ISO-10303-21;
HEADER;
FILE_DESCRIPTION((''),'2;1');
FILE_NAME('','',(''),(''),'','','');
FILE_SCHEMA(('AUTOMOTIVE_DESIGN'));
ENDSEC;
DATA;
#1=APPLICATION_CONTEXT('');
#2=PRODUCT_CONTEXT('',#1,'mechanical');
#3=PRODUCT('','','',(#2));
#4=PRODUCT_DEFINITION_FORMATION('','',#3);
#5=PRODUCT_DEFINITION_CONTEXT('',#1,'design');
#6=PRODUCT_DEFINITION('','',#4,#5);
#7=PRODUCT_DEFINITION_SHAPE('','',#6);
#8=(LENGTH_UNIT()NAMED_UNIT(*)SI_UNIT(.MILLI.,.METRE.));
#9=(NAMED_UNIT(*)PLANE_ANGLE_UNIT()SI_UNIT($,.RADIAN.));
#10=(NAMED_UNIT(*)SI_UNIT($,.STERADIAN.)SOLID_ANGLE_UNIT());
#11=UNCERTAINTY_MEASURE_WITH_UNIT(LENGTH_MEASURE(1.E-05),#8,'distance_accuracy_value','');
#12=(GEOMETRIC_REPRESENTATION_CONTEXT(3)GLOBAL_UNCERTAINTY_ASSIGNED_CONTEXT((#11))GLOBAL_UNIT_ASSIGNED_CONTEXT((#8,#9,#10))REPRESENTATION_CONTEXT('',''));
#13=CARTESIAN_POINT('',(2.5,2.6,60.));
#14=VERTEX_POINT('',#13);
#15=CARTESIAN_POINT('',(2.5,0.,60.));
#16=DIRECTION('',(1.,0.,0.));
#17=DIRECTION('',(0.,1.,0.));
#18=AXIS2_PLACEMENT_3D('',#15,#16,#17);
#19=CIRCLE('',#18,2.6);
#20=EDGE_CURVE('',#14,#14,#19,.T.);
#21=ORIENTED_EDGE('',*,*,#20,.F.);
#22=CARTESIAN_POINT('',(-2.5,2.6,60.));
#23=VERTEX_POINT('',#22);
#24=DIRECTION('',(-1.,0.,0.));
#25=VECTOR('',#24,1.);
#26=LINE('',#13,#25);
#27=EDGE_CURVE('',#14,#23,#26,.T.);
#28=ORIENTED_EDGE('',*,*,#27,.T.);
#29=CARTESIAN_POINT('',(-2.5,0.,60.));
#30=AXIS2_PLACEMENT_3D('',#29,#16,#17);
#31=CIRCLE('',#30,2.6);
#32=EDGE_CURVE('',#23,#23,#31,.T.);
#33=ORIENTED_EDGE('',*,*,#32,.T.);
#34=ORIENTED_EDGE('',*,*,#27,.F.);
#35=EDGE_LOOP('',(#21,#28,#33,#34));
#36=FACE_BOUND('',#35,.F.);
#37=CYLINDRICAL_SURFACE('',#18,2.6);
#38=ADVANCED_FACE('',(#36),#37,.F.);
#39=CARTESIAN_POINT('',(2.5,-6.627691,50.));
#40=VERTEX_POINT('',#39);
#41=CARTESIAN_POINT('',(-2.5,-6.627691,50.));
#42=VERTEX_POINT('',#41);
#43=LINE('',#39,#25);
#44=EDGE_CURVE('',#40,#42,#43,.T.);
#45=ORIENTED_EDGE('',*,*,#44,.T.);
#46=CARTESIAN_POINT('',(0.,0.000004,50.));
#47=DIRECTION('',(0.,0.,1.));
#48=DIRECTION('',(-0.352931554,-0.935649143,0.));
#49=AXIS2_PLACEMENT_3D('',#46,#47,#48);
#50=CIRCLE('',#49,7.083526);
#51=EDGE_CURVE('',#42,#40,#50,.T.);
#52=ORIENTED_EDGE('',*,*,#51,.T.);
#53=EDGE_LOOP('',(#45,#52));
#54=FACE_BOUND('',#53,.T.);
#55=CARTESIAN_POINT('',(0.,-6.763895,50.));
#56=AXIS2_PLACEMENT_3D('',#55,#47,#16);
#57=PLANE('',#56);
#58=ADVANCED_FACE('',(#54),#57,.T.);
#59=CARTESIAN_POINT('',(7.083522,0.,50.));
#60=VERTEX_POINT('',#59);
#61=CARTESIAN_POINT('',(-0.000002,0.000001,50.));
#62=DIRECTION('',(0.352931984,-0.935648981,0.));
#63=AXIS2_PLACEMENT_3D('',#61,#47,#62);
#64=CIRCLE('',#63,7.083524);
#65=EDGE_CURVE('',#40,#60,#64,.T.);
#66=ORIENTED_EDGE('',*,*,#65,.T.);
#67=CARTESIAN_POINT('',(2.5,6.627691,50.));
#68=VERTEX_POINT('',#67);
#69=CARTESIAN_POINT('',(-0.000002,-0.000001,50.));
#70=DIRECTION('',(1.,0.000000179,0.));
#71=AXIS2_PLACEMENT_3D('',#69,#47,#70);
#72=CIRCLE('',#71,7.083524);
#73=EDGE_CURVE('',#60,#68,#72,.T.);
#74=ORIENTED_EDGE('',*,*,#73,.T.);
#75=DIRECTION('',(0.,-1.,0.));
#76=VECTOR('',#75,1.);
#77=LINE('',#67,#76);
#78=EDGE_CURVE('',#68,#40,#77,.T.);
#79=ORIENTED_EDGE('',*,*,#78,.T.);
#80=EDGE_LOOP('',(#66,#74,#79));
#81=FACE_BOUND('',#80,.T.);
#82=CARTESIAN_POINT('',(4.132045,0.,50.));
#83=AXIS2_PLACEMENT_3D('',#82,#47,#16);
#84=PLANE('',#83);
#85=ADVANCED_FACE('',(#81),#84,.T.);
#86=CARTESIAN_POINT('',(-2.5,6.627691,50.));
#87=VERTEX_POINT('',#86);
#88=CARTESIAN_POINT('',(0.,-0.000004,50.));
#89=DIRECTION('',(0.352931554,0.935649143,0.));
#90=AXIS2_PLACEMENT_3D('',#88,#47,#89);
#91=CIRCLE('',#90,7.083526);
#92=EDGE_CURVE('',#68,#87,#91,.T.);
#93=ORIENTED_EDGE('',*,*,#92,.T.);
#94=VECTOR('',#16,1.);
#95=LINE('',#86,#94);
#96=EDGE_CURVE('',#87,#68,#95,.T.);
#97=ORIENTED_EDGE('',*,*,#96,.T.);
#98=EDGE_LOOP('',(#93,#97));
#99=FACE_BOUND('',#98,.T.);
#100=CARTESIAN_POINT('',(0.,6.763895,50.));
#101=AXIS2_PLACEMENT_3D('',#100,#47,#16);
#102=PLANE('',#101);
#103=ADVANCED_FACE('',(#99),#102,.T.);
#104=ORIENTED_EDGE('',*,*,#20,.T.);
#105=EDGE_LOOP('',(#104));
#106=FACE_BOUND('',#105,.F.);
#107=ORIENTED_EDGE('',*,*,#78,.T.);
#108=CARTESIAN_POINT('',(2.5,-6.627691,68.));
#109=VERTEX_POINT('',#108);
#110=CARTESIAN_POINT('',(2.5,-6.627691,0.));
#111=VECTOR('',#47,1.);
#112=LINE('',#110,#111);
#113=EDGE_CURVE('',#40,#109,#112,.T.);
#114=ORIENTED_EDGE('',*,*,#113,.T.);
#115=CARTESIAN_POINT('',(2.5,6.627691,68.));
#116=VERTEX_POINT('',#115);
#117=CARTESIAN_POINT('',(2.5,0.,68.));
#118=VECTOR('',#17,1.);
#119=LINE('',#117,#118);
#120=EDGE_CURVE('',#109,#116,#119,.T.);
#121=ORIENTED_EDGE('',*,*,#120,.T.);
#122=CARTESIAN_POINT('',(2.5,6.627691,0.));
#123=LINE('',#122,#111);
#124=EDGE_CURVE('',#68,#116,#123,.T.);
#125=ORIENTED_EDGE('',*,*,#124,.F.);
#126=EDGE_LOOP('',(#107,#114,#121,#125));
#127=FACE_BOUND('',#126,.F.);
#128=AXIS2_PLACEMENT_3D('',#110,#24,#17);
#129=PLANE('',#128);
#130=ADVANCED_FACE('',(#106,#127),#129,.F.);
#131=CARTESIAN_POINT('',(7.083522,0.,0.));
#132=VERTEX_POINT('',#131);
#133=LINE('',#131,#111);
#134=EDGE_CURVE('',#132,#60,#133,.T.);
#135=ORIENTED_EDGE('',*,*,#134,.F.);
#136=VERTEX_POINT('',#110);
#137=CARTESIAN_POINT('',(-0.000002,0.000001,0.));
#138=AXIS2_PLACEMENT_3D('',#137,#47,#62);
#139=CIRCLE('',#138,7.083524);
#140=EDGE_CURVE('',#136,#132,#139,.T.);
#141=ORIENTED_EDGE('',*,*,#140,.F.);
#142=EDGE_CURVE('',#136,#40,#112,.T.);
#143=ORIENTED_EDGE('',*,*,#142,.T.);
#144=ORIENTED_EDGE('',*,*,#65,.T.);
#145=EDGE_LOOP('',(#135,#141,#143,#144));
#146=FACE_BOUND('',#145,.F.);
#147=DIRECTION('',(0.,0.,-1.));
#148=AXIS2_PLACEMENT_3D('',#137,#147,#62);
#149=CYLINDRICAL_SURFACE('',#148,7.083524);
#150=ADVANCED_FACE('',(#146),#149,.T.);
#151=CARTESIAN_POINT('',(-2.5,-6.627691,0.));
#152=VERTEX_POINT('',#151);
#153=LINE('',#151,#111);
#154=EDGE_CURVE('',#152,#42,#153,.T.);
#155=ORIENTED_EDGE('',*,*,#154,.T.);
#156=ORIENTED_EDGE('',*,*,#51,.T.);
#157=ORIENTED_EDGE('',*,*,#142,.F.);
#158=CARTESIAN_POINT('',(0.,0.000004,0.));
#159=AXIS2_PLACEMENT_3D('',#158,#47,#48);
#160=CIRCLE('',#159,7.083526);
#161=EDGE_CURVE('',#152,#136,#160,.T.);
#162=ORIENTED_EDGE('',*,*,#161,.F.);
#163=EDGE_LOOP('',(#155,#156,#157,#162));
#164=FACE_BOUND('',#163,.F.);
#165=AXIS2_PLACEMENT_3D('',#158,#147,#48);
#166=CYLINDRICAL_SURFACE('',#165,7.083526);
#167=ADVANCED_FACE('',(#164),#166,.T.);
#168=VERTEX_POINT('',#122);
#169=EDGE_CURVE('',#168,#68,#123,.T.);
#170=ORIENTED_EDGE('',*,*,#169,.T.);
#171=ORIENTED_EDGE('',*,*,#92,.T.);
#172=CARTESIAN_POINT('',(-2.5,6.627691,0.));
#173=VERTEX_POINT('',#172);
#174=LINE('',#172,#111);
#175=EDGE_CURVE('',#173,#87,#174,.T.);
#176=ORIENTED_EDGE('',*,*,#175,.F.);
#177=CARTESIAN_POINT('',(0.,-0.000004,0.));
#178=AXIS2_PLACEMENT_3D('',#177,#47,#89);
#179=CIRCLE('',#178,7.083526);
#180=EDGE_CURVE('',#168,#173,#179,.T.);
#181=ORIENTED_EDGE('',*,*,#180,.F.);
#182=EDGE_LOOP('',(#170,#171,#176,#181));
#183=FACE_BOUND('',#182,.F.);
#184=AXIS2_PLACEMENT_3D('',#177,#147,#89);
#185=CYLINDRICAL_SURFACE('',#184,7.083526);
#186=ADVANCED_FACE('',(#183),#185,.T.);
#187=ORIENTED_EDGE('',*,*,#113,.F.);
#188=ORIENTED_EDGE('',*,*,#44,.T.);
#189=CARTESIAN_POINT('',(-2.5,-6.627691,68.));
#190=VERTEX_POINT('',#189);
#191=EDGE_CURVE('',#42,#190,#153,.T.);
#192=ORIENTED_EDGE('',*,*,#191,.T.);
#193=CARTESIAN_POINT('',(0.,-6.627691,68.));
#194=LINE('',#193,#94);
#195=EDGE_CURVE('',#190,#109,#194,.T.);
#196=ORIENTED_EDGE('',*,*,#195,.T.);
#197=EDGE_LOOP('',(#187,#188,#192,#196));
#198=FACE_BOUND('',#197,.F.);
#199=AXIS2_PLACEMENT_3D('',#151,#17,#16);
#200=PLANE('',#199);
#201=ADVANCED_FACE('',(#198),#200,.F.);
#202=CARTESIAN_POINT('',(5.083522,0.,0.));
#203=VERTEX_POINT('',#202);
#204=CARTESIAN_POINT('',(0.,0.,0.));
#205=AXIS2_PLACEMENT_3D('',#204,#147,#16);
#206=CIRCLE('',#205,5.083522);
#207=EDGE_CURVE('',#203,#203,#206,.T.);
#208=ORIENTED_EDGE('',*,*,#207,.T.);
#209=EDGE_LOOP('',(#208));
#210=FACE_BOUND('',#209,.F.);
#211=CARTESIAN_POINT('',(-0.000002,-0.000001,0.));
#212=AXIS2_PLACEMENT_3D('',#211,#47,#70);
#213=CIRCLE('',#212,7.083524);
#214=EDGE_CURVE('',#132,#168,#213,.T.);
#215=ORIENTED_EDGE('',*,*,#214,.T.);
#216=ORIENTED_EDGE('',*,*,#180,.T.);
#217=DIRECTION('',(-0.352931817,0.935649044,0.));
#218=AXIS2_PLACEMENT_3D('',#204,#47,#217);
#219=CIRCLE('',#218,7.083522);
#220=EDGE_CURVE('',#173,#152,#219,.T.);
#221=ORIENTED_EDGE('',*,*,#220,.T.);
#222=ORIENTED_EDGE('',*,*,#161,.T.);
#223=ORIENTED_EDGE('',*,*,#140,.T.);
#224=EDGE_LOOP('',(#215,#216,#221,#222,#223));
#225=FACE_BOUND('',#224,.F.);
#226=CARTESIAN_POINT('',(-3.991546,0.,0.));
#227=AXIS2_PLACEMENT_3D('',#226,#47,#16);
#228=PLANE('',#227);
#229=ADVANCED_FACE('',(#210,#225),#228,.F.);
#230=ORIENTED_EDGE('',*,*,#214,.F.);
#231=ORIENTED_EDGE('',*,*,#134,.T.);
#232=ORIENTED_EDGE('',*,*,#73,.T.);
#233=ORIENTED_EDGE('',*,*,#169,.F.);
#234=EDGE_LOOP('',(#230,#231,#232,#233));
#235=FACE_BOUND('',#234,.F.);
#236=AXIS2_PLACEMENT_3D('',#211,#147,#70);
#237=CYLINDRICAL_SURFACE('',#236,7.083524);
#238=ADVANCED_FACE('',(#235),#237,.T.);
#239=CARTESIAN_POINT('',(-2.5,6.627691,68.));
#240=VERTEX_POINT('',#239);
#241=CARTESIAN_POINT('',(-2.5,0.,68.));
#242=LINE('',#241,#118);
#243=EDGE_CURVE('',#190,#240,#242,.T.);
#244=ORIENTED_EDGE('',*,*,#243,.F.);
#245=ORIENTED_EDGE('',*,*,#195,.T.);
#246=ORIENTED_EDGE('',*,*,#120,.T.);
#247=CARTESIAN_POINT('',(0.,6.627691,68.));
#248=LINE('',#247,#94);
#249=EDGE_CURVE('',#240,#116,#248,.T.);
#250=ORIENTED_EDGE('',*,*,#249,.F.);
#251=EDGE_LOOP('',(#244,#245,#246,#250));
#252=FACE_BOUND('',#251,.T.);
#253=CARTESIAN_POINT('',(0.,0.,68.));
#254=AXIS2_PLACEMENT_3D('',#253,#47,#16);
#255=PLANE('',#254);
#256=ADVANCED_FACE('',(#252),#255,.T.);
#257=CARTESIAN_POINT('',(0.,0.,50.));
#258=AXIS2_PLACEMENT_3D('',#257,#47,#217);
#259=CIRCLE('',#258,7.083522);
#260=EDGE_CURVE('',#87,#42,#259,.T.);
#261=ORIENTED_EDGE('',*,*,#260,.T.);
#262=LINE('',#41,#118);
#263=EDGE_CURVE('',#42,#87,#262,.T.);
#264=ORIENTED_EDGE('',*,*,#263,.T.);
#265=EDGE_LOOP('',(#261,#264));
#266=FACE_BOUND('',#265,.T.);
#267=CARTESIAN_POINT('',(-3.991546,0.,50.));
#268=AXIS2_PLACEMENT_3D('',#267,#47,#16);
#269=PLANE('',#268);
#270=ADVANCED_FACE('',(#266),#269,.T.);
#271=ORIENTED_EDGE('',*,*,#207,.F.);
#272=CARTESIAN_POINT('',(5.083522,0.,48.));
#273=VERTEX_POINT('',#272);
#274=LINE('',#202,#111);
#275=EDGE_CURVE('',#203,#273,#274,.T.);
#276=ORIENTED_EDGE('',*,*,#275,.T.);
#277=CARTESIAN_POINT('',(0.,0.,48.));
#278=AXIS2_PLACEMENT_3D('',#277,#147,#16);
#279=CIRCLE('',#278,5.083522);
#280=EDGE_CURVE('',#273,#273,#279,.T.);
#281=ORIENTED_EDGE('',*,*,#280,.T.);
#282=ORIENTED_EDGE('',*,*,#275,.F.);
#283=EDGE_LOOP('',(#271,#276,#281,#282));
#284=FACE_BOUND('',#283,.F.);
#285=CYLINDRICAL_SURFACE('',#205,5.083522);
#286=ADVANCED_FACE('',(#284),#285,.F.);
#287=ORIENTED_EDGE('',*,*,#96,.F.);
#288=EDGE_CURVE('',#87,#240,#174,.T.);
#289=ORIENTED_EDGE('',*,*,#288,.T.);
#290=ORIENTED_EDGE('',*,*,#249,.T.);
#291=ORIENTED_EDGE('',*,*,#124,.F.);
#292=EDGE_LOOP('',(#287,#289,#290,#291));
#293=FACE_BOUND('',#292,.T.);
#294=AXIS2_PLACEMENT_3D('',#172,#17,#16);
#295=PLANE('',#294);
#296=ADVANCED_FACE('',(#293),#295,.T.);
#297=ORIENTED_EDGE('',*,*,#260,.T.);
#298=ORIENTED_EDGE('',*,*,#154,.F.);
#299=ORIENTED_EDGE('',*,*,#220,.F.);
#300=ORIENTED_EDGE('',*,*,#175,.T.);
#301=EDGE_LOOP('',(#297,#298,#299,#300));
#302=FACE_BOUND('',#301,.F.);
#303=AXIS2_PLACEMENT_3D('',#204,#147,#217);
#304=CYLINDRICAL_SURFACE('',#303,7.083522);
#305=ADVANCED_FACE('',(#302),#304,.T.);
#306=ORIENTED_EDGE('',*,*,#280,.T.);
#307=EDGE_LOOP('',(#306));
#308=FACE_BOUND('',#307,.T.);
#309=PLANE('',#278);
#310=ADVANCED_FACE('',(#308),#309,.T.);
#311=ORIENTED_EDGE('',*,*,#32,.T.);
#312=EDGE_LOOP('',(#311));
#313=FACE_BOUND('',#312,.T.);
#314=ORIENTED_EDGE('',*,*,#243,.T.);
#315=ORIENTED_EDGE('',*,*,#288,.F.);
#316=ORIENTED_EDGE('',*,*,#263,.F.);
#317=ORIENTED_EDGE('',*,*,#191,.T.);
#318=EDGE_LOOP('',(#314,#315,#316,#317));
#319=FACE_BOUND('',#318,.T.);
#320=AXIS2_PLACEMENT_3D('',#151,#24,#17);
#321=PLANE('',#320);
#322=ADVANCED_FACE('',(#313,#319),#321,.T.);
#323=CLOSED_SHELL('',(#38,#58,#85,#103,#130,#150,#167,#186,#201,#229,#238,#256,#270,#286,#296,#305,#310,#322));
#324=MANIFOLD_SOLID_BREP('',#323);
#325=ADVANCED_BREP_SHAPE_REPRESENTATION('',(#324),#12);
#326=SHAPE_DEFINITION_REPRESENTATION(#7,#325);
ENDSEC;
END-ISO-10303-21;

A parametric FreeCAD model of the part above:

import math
import FreeCAD as App
import Part
import Sketcher

doc = App.newDocument("Part")
params = doc.addObject("Spreadsheet::Sheet", "Params")
for row, (alias, value) in enumerate([
    ("sketch1_width", "5 mm"),
    ("pad1_length", "50 mm"),
    ("sketch2_width", "5 mm"),
    ("pad2_length", "68 mm"),
    ("sketch3_diameter", "5.2 mm"),
    ("pocket2_length", "48 mm"),
], start=1):
    params.set(f"A{row}", alias)
    params.set(f"B{row}", "=" + value)
    params.setAlias(f"B{row}", alias)

body = doc.addObject("PartDesign::Body", "Body")
body.AllowCompound = True

# Sketch on XY plane
sketch1 = body.newObject("Sketcher::SketchObject", "Sketch")
sketch1.AttachmentSupport = (doc.getObject("XY_Plane"), [""])
sketch1.MapMode = "FlatFace"
sketch1.addGeometry([
    Part.ArcOfCircle(Part.Circle(App.Vector(0, 0, 0), App.Vector(0, 0, 1), 7), math.radians(-69), math.radians(0)),  # 0
    Part.ArcOfCircle(Part.Circle(App.Vector(0, 0, 0), App.Vector(0, 0, 1), 7), math.radians(0), math.radians(69)),  # 1
    Part.LineSegment(App.Vector(2, 7, 0), App.Vector(2, -7, 0)),  # 2
    Part.LineSegment(App.Vector(-2, 7, 0), App.Vector(2, 7, 0)),  # 3
    Part.ArcOfCircle(Part.Circle(App.Vector(0, 0, 0), App.Vector(0, 0, 1), 7), math.radians(69), math.radians(111)),  # 4
    Part.ArcOfCircle(Part.Circle(App.Vector(0, 0, 0), App.Vector(0, 0, 1), 7), math.radians(-111), math.radians(-69)),  # 5
    Part.LineSegment(App.Vector(2, -7, 0), App.Vector(-2, -7, 0)),  # 6
    Part.LineSegment(App.Vector(-2, -7, 0), App.Vector(-2, 7, 0)),  # 7
    Part.ArcOfCircle(Part.Circle(App.Vector(0, 0, 0), App.Vector(0, 0, 1), 7), math.radians(111), math.radians(249)),  # 8
], False)
sketch1.addConstraint([
    Sketcher.Constraint("Tangent", 0, 2, 1, 1),
    Sketcher.Constraint("Coincident", 1, 2, 2, 1),
    Sketcher.Constraint("Coincident", 2, 2, 0, 1),
    Sketcher.Constraint("Coincident", 3, 1, 4, 2),
    Sketcher.Constraint("Coincident", 4, 1, 3, 2),
    Sketcher.Constraint("Coincident", 5, 1, 6, 2),
    Sketcher.Constraint("Coincident", 6, 1, 5, 2),
    Sketcher.Constraint("Coincident", 7, 1, 8, 2),
    Sketcher.Constraint("Coincident", 8, 1, 7, 2),
    Sketcher.Constraint("Vertical", 2),
    Sketcher.Constraint("Horizontal", 3),
    Sketcher.Constraint("Horizontal", 6),
    Sketcher.Constraint("Vertical", 7),
    Sketcher.Constraint("Coincident", 0, 3, -1, 1),
    Sketcher.Constraint("Coincident", 4, 3, -1, 1),
    Sketcher.Constraint("Coincident", 5, 3, -1, 1),
    Sketcher.Constraint("Coincident", 8, 3, -1, 1),
    Sketcher.Constraint("Coincident", 4, 1, 1, 2),
    Sketcher.Constraint("Coincident", 6, 1, 2, 2),
    Sketcher.Constraint("Coincident", 7, 1, 5, 1),
    Sketcher.Constraint("Equal", 0, 1),
    Sketcher.Constraint("PointOnObject", 0, 2, -1),
    Sketcher.Constraint("DistanceX", 3, 1, 3, 2, 5.0),
    Sketcher.Constraint("Radius", 0, 7.083524),
])
sketch1.setExpression("Constraints[22]", "Params.sketch1_width")
pad1 = body.newObject("PartDesign::Pad", "Pad")
pad1.Profile = sketch1
pad1.setExpression("Length", "Params.pad1_length")

# Sketch on XY plane
sketch2 = body.newObject("Sketcher::SketchObject", "Sketch001")
sketch2.AttachmentSupport = (doc.getObject("XY_Plane"), [""])
sketch2.MapMode = "FlatFace"
sketch2.addGeometry([
    Part.LineSegment(App.Vector(-2, 7, 0), App.Vector(-2, -7, 0)),
    Part.LineSegment(App.Vector(-2, -7, 0), App.Vector(2, -7, 0)),
    Part.LineSegment(App.Vector(2, -7, 0), App.Vector(2, 7, 0)),
    Part.LineSegment(App.Vector(2, 7, 0), App.Vector(-2, 7, 0)),
], False)
sketch2.addConstraint([
    Sketcher.Constraint("Coincident", 0, 2, 1, 1),
    Sketcher.Constraint("Coincident", 1, 2, 2, 1),
    Sketcher.Constraint("Coincident", 2, 2, 3, 1),
    Sketcher.Constraint("Coincident", 3, 2, 0, 1),
    Sketcher.Constraint("Vertical", 0),
    Sketcher.Constraint("Horizontal", 1),
    Sketcher.Constraint("Vertical", 2),
    Sketcher.Constraint("Horizontal", 3),
    Sketcher.Constraint("Symmetric", 0, 2, 2, 2, -1, 1),
    Sketcher.Constraint("DistanceX", 1, 1, 1, 2, 5.0),
    Sketcher.Constraint("DistanceY", 0, 2, 0, 1, 13.255382),
])
sketch2.setExpression("Constraints[9]", "Params.sketch2_width")
pad2 = body.newObject("PartDesign::Pad", "Pad001")
pad2.Profile = sketch2
pad2.setExpression("Length", "Params.pad2_length")

# Sketch on YZ plane
sketch3 = body.newObject("Sketcher::SketchObject", "Sketch002")
sketch3.AttachmentSupport = (doc.getObject("YZ_Plane"), [""])
sketch3.MapMode = "FlatFace"
sketch3.AttachmentOffset = App.Placement(App.Vector(0, 0, 2.5), App.Rotation())
sketch3.addGeometry(Part.Circle(App.Vector(0, 60, 0), App.Vector(0, 0, 1), 2.6), False)
sketch3.addConstraint([
    Sketcher.Constraint("PointOnObject", 0, 3, -2),
    Sketcher.Constraint("Diameter", 0, 5.2),
    Sketcher.Constraint("DistanceY", -1, 1, 0, 3, 60.0),
])
sketch3.setExpression("Constraints[1]", "Params.sketch3_diameter")
pocket1 = body.newObject("PartDesign::Pocket", "Pocket")
pocket1.Profile = sketch3
pocket1.Type = "ThroughAll"

# Sketch on XY plane
sketch4 = body.newObject("Sketcher::SketchObject", "Sketch003")
sketch4.AttachmentSupport = (doc.getObject("XY_Plane"), [""])
sketch4.MapMode = "FlatFace"
sketch4.addGeometry(Part.Circle(App.Vector(0, 0, 0), App.Vector(0, 0, 1), 5), False)
sketch4.addConstraint([
    Sketcher.Constraint("Coincident", 0, 3, -1, 1),
    Sketcher.Constraint("Diameter", 0, 10.167044),
])
pocket2 = body.newObject("PartDesign::Pocket", "Pocket001")
pocket2.Profile = sketch4
pocket2.setExpression("Length", "Params.pocket2_length")
pocket2.Reversed = True

doc.recompute()
